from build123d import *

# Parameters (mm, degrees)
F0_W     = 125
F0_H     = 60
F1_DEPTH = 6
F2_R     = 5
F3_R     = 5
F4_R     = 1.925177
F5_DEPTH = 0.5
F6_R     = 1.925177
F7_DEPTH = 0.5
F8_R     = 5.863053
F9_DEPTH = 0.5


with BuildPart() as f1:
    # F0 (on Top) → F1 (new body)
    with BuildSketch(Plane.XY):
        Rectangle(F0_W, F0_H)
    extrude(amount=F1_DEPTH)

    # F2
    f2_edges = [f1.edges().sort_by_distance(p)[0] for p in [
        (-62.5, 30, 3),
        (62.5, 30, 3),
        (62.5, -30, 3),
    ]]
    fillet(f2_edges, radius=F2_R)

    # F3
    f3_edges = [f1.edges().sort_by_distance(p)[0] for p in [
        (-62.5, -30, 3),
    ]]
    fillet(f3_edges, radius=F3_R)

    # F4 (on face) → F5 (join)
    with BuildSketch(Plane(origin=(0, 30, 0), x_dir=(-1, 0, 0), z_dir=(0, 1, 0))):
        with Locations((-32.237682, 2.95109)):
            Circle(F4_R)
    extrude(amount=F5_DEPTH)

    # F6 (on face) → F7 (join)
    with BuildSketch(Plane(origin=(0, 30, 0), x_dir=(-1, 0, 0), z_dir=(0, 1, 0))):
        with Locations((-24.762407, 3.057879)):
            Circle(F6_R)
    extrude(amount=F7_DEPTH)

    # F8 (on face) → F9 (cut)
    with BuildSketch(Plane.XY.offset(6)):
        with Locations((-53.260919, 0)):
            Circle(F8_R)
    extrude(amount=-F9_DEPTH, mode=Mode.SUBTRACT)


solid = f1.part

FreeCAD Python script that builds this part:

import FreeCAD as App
import Part
import Sketcher
Q = App.Units.Quantity


def edges_at(feature, points):
    """Names of the edges that pass closest to the given points."""
    edges = feature.Shape.Edges
    near = lambda p: min(range(len(edges)), key=lambda i: edges[i].distToShape(Part.Vertex(*p))[0])
    return sorted({f"Edge{near(p) + 1}" for p in points})

doc = App.newDocument("Part")
params = doc.addObject("Spreadsheet::Sheet", "Params")
for row, (alias, value) in enumerate([
    ("sketch1_width", "125 mm"),
    ("sketch1_height", "60 mm"),
    ("pad1_length", "6 mm"),
    ("fillet_radius", "5 mm"),
    ("fillet2_radius", "5 mm"),
    ("pad2_length", "0.5 mm"),
    ("pad3_length", "0.5 mm"),
    ("pocket1_length", "0.5 mm"),
], start=1):
    params.set(f"A{row}", alias)
    params.set(f"B{row}", "=" + value)
    params.setAlias(f"B{row}", alias)

body = doc.addObject("PartDesign::Body", "Body")

# Sketch on XY plane
sketch1 = body.newObject("Sketcher::SketchObject", "Sketch")
sketch1.AttachmentSupport = (doc.getObject("XY_Plane"), [""])
sketch1.MapMode = "FlatFace"
sketch1.addGeometry([
    Part.LineSegment(App.Vector(-62.5, 30, 0), App.Vector(-62.5, -30, 0)),
    Part.LineSegment(App.Vector(-62.5, -30, 0), App.Vector(62.5, -30, 0)),
    Part.LineSegment(App.Vector(62.5, -30, 0), App.Vector(62.5, 30, 0)),
    Part.LineSegment(App.Vector(62.5, 30, 0), App.Vector(-62.5, 30, 0)),
], False)
sketch1.addConstraint([
    Sketcher.Constraint("Coincident", 0, 2, 1, 1),
    Sketcher.Constraint("Coincident", 1, 2, 2, 1),
    Sketcher.Constraint("Coincident", 2, 2, 3, 1),
    Sketcher.Constraint("Coincident", 3, 2, 0, 1),
    Sketcher.Constraint("Vertical", 0),
    Sketcher.Constraint("Horizontal", 1),
    Sketcher.Constraint("Vertical", 2),
    Sketcher.Constraint("Horizontal", 3),
    Sketcher.Constraint("Symmetric", 0, 2, 2, 2, -1, 1),
    Sketcher.Constraint("DistanceX", 1, 1, 1, 2, Q("125 mm")),
    Sketcher.Constraint("DistanceY", 0, 2, 0, 1, Q("60 mm")),
])
sketch1.setExpression("Constraints[9]", "Params.sketch1_width")
sketch1.setExpression("Constraints[10]", "Params.sketch1_height")
pad1 = body.newObject("PartDesign::Pad", "Pad")
pad1.Profile = sketch1
pad1.setExpression("Length", "Params.pad1_length")
doc.recompute()

fillet = body.newObject("PartDesign::Fillet", "Fillet")
fillet.Base = (pad1, edges_at(pad1, [(-62.5, 30, 3), (62.5, 30, 3), (62.5, -30, 3)]))
fillet.setExpression("Radius", "Params.fillet_radius")
doc.recompute()

fillet2 = body.newObject("PartDesign::Fillet", "Fillet001")
fillet2.Base = (fillet, edges_at(fillet, [(-62.5, -30, 3)]))
fillet2.setExpression("Radius", "Params.fillet2_radius")

# Sketch on XZ plane
sketch2 = body.newObject("Sketcher::SketchObject", "Sketch001")
sketch2.AttachmentSupport = (doc.getObject("XZ_Plane"), [""])
sketch2.MapMode = "FlatFace"
sketch2.AttachmentOffset = App.Placement(App.Vector(0, 0, -30), App.Rotation())
sketch2.addGeometry(Part.Circle(App.Vector(32.237682, 2.95109, 0), App.Vector(0, 0, 1), 1.925177), False)
sketch2.addConstraint([
    Sketcher.Constraint("Diameter", 0, Q("3.850354 mm")),
    Sketcher.Constraint("DistanceY", -1, 1, 0, 3, Q("2.95109 mm")),
    Sketcher.Constraint("DistanceX", -1, 1, 0, 3, Q("32.237682 mm")),
])
pad2 = body.newObject("PartDesign::Pad", "Pad001")
pad2.Profile = sketch2
pad2.setExpression("Length", "Params.pad2_length")
pad2.Reversed = True

# Sketch on XZ plane
sketch3 = body.newObject("Sketcher::SketchObject", "Sketch002")
sketch3.AttachmentSupport = (doc.getObject("XZ_Plane"), [""])
sketch3.MapMode = "FlatFace"
sketch3.AttachmentOffset = App.Placement(App.Vector(0, 0, -30), App.Rotation())
sketch3.addGeometry(Part.Circle(App.Vector(24.762407, 3.057879, 0), App.Vector(0, 0, 1), 1.925177), False)
sketch3.addConstraint([
    Sketcher.Constraint("Diameter", 0, Q("3.850354 mm")),
    Sketcher.Constraint("DistanceY", -1, 1, 0, 3, Q("3.057879 mm")),
    Sketcher.Constraint("DistanceX", -1, 1, 0, 3, Q("24.762407 mm")),
])
pad3 = body.newObject("PartDesign::Pad", "Pad002")
pad3.Profile = sketch3
pad3.setExpression("Length", "Params.pad3_length")
pad3.Reversed = True

# Sketch on XY plane
sketch4 = body.newObject("Sketcher::SketchObject", "Sketch003")
sketch4.AttachmentSupport = (doc.getObject("XY_Plane"), [""])
sketch4.MapMode = "FlatFace"
sketch4.AttachmentOffset = App.Placement(App.Vector(0, 0, 6), App.Rotation())
sketch4.addGeometry(Part.Circle(App.Vector(-53.260919, 0, 0), App.Vector(0, 0, 1), 5.863053), False)
sketch4.addConstraint([
    Sketcher.Constraint("PointOnObject", 0, 3, -1),
    Sketcher.Constraint("Diameter", 0, Q("11.726106 mm")),
    Sketcher.Constraint("DistanceX", 0, 3, -1, 1, Q("53.260919 mm")),
])
pocket1 = body.newObject("PartDesign::Pocket", "Pocket")
pocket1.Profile = sketch4
pocket1.setExpression("Length", "Params.pocket1_length")

doc.recompute()
